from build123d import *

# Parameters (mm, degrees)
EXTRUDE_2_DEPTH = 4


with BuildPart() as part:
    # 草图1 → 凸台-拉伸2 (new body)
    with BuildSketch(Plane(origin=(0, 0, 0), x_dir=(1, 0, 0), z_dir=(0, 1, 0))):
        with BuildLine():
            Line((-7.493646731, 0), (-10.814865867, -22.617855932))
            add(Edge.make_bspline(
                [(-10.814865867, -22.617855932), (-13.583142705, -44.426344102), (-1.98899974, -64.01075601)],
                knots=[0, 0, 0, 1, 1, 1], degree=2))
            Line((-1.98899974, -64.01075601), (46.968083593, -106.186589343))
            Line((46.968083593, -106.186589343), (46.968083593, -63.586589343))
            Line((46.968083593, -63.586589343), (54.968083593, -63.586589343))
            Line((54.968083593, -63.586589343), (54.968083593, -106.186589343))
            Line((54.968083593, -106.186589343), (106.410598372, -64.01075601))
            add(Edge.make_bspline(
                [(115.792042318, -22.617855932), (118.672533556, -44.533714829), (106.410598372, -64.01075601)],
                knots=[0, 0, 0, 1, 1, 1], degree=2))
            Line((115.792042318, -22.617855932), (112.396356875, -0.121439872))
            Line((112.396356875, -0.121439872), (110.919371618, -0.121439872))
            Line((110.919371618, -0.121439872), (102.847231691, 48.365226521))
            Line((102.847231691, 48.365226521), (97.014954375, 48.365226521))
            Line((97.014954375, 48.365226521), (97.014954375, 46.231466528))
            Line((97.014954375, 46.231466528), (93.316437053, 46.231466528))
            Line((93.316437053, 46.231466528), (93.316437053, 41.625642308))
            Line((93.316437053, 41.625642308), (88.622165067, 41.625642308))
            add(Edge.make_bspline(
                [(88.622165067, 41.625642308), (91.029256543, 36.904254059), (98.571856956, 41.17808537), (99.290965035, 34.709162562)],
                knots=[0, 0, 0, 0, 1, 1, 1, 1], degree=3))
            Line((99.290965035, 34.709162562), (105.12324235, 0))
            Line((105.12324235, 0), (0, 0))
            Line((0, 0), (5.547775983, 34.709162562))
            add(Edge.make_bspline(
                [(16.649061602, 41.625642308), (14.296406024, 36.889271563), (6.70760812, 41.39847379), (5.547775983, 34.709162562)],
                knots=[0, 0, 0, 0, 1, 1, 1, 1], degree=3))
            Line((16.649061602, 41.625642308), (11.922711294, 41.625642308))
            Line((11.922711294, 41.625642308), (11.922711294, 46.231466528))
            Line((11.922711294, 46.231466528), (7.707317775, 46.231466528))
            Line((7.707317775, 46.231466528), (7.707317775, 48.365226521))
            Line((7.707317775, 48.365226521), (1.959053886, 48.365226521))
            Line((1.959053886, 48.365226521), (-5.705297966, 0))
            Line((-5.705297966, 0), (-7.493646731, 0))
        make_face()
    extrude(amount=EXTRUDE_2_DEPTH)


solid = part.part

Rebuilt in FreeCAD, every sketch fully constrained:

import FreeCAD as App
import Part
import Sketcher
Q = App.Units.Quantity

doc = App.newDocument("Part")
params = doc.addObject("Spreadsheet::Sheet", "Params")
for row, (alias, value) in enumerate([
    ("sketch1_width", "8 mm"),
    ("sketch1_height", "42.6 mm"),
    ("pad1_length", "4 mm"),
], start=1):
    params.set(f"A{row}", alias)
    params.set(f"B{row}", "=" + value)
    params.setAlias(f"B{row}", alias)

body = doc.addObject("PartDesign::Body", "Body")

# Sketch on XZ plane
sketch1 = body.newObject("Sketcher::SketchObject", "Sketch")
sketch1.AttachmentSupport = (doc.getObject("XZ_Plane"), [""])
sketch1.MapMode = "FlatFace"
sketch1.addGeometry(Part.LineSegment(App.Vector(-7.493647, 0, 0), App.Vector(-10.814866, 22.617856, 0)), False)
sketch1.addGeometry(Part.BSplineCurve([App.Vector(-10.814866, 22.617856, 0), App.Vector(-13.583143, 44.426344, 0), App.Vector(-1.989, 64.010756, 0)], [3, 3], [0, 1], False, 2, [1, 1, 1], False), False)
sketch1.addGeometry(Part.LineSegment(App.Vector(-1.989, 64.010756, 0), App.Vector(46.968084, 106.186589, 0)), False)
sketch1.addGeometry(Part.LineSegment(App.Vector(46.968084, 106.186589, 0), App.Vector(46.968084, 63.586589, 0)), False)
sketch1.addGeometry(Part.LineSegment(App.Vector(46.968084, 63.586589, 0), App.Vector(54.968084, 63.586589, 0)), False)
sketch1.addGeometry(Part.LineSegment(App.Vector(54.968084, 63.586589, 0), App.Vector(54.968084, 106.186589, 0)), False)
sketch1.addGeometry(Part.LineSegment(App.Vector(54.968084, 106.186589, 0), App.Vector(106.410598, 64.010756, 0)), False)
sketch1.addGeometry(Part.BSplineCurve([App.Vector(115.792042, 22.617856, 0), App.Vector(118.672534, 44.533715, 0), App.Vector(106.410598, 64.010756, 0)], [3, 3], [0, 1], False, 2, [1, 1, 1], False), False)
sketch1.addGeometry(Part.LineSegment(App.Vector(115.792042, 22.617856, 0), App.Vector(112.396357, 0.12144, 0)), False)
sketch1.addGeometry(Part.LineSegment(App.Vector(112.396357, 0.12144, 0), App.Vector(110.919372, 0.12144, 0)), False)
sketch1.addGeometry(Part.LineSegment(App.Vector(110.919372, 0.12144, 0), App.Vector(102.847232, -48.365227, 0)), False)
sketch1.addGeometry(Part.LineSegment(App.Vector(102.847232, -48.365227, 0), App.Vector(97.014954, -48.365227, 0)), False)
sketch1.addGeometry(Part.LineSegment(App.Vector(97.014954, -48.365227, 0), App.Vector(97.014954, -46.231467, 0)), False)
sketch1.addGeometry(Part.LineSegment(App.Vector(97.014954, -46.231467, 0), App.Vector(93.316437, -46.231467, 0)), False)
sketch1.addGeometry(Part.LineSegment(App.Vector(93.316437, -46.231467, 0), App.Vector(93.316437, -41.625642, 0)), False)
sketch1.addGeometry(Part.LineSegment(App.Vector(93.316437, -41.625642, 0), App.Vector(88.622165, -41.625642, 0)), False)
sketch1.addGeometry(Part.BSplineCurve([App.Vector(88.622165, -41.625642, 0), App.Vector(91.029257, -36.904254, 0), App.Vector(98.571857, -41.178085, 0), App.Vector(99.290965, -34.709163, 0)], [4, 4], [0, 1], False, 3, [1, 1, 1, 1], False), False)
sketch1.addGeometry(Part.LineSegment(App.Vector(99.290965, -34.709163, 0), App.Vector(105.123242, 0, 0)), False)
sketch1.addGeometry(Part.LineSegment(App.Vector(105.123242, 0, 0), App.Vector(0, 0, 0)), False)
sketch1.addGeometry(Part.LineSegment(App.Vector(0, 0, 0), App.Vector(5.547776, -34.709163, 0)), False)
sketch1.addGeometry(Part.BSplineCurve([App.Vector(16.649062, -41.625642, 0), App.Vector(14.296406, -36.889272, 0), App.Vector(6.707608, -41.398474, 0), App.Vector(5.547776, -34.709163, 0)], [4, 4], [0, 1], False, 3, [1, 1, 1, 1], False), False)
sketch1.addGeometry(Part.LineSegment(App.Vector(16.649062, -41.625642, 0), App.Vector(11.922711, -41.625642, 0)), False)
sketch1.addGeometry(Part.LineSegment(App.Vector(11.922711, -41.625642, 0), App.Vector(11.922711, -46.231467, 0)), False)
sketch1.addGeometry(Part.LineSegment(App.Vector(11.922711, -46.231467, 0), App.Vector(7.707318, -46.231467, 0)), False)
sketch1.addGeometry(Part.LineSegment(App.Vector(7.707318, -46.231467, 0), App.Vector(7.707318, -48.365227, 0)), False)
sketch1.addGeometry(Part.LineSegment(App.Vector(7.707318, -48.365227, 0), App.Vector(1.959054, -48.365227, 0)), False)
sketch1.addGeometry(Part.LineSegment(App.Vector(1.959054, -48.365227, 0), App.Vector(-5.705298, 0, 0)), False)
sketch1.addGeometry(Part.LineSegment(App.Vector(-5.705298, 0, 0), App.Vector(-7.493647, 0, 0)), False)
sketch1.addConstraint(Sketcher.Constraint("Block", 1))
sketch1.addConstraint(Sketcher.Constraint("Block", 7))
sketch1.addConstraint(Sketcher.Constraint("Block", 16))
sketch1.addConstraint(Sketcher.Constraint("Block", 20))
sketch1.addConstraint(Sketcher.Constraint("Coincident", 0, 2, 1, 1))
sketch1.addConstraint(Sketcher.Constraint("Coincident", 1, 2, 2, 1))
sketch1.addConstraint(Sketcher.Constraint("Coincident", 2, 2, 3, 1))
sketch1.addConstraint(Sketcher.Constraint("Coincident", 3, 2, 4, 1))
sketch1.addConstraint(Sketcher.Constraint("Coincident", 4, 2, 5, 1))
sketch1.addConstraint(Sketcher.Constraint("Coincident", 5, 2, 6, 1))
sketch1.addConstraint(Sketcher.Constraint("Coincident", 6, 2, 7, 2))
sketch1.addConstraint(Sketcher.Constraint("Coincident", 7, 1, 8, 1))
sketch1.addConstraint(Sketcher.Constraint("Coincident", 8, 2, 9, 1))
sketch1.addConstraint(Sketcher.Constraint("Coincident", 9, 2, 10, 1))
sketch1.addConstraint(Sketcher.Constraint("Coincident", 10, 2, 11, 1))
sketch1.addConstraint(Sketcher.Constraint("Coincident", 11, 2, 12, 1))
sketch1.addConstraint(Sketcher.Constraint("Coincident", 12, 2, 13, 1))
sketch1.addConstraint(Sketcher.Constraint("Coincident", 13, 2, 14, 1))
sketch1.addConstraint(Sketcher.Constraint("Coincident", 14, 2, 15, 1))
sketch1.addConstraint(Sketcher.Constraint("Coincident", 15, 2, 16, 1))
sketch1.addConstraint(Sketcher.Constraint("Coincident", 16, 2, 17, 1))
sketch1.addConstraint(Sketcher.Constraint("Coincident", 17, 2, 18, 1))
sketch1.addConstraint(Sketcher.Constraint("Coincident", 18, 2, 19, 1))
sketch1.addConstraint(Sketcher.Constraint("Coincident", 19, 2, 20, 2))
sketch1.addConstraint(Sketcher.Constraint("Coincident", 20, 1, 21, 1))
sketch1.addConstraint(Sketcher.Constraint("Coincident", 21, 2, 22, 1))
sketch1.addConstraint(Sketcher.Constraint("Coincident", 22, 2, 23, 1))
sketch1.addConstraint(Sketcher.Constraint("Coincident", 23, 2, 24, 1))
sketch1.addConstraint(Sketcher.Constraint("Coincident", 24, 2, 25, 1))
sketch1.addConstraint(Sketcher.Constraint("Coincident", 25, 2, 26, 1))
sketch1.addConstraint(Sketcher.Constraint("Coincident", 26, 2, 27, 1))
sketch1.addConstraint(Sketcher.Constraint("Coincident", 27, 2, 0, 1))
sketch1.addConstraint(Sketcher.Constraint("Vertical", 3))
sketch1.addConstraint(Sketcher.Constraint("Horizontal", 4))
sketch1.addConstraint(Sketcher.Constraint("Vertical", 5))
sketch1.addConstraint(Sketcher.Constraint("Horizontal", 9))
sketch1.addConstraint(Sketcher.Constraint("Horizontal", 11))
sketch1.addConstraint(Sketcher.Constraint("Vertical", 12))
sketch1.addConstraint(Sketcher.Constraint("Horizontal", 13))
sketch1.addConstraint(Sketcher.Constraint("Vertical", 14))
sketch1.addConstraint(Sketcher.Constraint("Horizontal", 15))
sketch1.addConstraint(Sketcher.Constraint("Horizontal", 18))
sketch1.addConstraint(Sketcher.Constraint("Horizontal", 21))
sketch1.addConstraint(Sketcher.Constraint("Vertical", 22))
sketch1.addConstraint(Sketcher.Constraint("Horizontal", 23))
sketch1.addConstraint(Sketcher.Constraint("Vertical", 24))
sketch1.addConstraint(Sketcher.Constraint("Horizontal", 25))
sketch1.addConstraint(Sketcher.Constraint("Horizontal", 27))
sketch1.addConstraint(Sketcher.Constraint("Coincident", 18, 2, -1, 1))
sketch1.addConstraint(Sketcher.Constraint("PointOnObject", 26, 2, -1))
sketch1.addConstraint(Sketcher.Constraint("Horizontal", 2, 2, 5, 2))
sketch1.addConstraint(Sketcher.Constraint("Horizontal", 13, 2, 22, 2))
sketch1.addConstraint(Sketcher.Constraint("Horizontal", 11, 2, 24, 2))
sketch1.addConstraint(Sketcher.Constraint("DistanceX", 4, 1, 4, 2, Q("8 mm")))
sketch1.addConstraint(Sketcher.Constraint("DistanceY", 3, 2, 3, 1, Q("42.6 mm")))
sketch1.addConstraint(Sketcher.Constraint("Distance", 0, Q("22.8604 mm")))
sketch1.addConstraint(Sketcher.Constraint("DistanceX", 15, 2, 15, 1, Q("4.694272 mm")))
sketch1.addConstraint(Sketcher.Constraint("DistanceX", 21, 2, 21, 1, Q("4.72635 mm")))
sketch1.addConstraint(Sketcher.Constraint("DistanceX", 27, 2, 27, 1, Q("1.788349 mm")))
sketch1.addConstraint(Sketcher.Constraint("DistanceY", 12, 1, 12, 2, Q("2.13376 mm")))
sketch1.addConstraint(Sketcher.Constraint("Distance", 2, Q("64.618859 mm")))
sketch1.addConstraint(Sketcher.Constraint("Distance", 8, Q("22.751251 mm")))
sketch1.addConstraint(Sketcher.Constraint("Distance", 17, Q("35.195759 mm")))
sketch1.addConstraint(Sketcher.Constraint("Distance", 26, Q("48.968739 mm")))
sketch1.addConstraint(Sketcher.Constraint("DistanceX", 9, 2, 9, 1, Q("1.476985 mm")))
sketch1.addConstraint(Sketcher.Constraint("DistanceX", 11, 2, 11, 1, Q("5.832277 mm")))
sketch1.addConstraint(Sketcher.Constraint("DistanceX", 13, 2, 13, 1, Q("3.698517 mm")))
sketch1.addConstraint(Sketcher.Constraint("DistanceX", 23, 2, 23, 1, Q("4.215394 mm")))
sketch1.addConstraint(Sketcher.Constraint("DistanceX", 25, 2, 25, 1, Q("5.748264 mm")))
sketch1.addConstraint(Sketcher.Constraint("DistanceY", -1, 1, 2, 2, Q("106.186589 mm")))
sketch1.addConstraint(Sketcher.Constraint("DistanceY", -1, 1, 8, 2, Q("0.12144 mm")))
sketch1.setExpression("Constraints[53]", "Params.sketch1_width")
sketch1.setExpression("Constraints[54]", "Params.sketch1_height")
pad1 = body.newObject("PartDesign::Pad", "Pad")
pad1.Profile = sketch1
pad1.setExpression("Length", "Params.pad1_length")
pad1.Reversed = True

doc.recompute()
